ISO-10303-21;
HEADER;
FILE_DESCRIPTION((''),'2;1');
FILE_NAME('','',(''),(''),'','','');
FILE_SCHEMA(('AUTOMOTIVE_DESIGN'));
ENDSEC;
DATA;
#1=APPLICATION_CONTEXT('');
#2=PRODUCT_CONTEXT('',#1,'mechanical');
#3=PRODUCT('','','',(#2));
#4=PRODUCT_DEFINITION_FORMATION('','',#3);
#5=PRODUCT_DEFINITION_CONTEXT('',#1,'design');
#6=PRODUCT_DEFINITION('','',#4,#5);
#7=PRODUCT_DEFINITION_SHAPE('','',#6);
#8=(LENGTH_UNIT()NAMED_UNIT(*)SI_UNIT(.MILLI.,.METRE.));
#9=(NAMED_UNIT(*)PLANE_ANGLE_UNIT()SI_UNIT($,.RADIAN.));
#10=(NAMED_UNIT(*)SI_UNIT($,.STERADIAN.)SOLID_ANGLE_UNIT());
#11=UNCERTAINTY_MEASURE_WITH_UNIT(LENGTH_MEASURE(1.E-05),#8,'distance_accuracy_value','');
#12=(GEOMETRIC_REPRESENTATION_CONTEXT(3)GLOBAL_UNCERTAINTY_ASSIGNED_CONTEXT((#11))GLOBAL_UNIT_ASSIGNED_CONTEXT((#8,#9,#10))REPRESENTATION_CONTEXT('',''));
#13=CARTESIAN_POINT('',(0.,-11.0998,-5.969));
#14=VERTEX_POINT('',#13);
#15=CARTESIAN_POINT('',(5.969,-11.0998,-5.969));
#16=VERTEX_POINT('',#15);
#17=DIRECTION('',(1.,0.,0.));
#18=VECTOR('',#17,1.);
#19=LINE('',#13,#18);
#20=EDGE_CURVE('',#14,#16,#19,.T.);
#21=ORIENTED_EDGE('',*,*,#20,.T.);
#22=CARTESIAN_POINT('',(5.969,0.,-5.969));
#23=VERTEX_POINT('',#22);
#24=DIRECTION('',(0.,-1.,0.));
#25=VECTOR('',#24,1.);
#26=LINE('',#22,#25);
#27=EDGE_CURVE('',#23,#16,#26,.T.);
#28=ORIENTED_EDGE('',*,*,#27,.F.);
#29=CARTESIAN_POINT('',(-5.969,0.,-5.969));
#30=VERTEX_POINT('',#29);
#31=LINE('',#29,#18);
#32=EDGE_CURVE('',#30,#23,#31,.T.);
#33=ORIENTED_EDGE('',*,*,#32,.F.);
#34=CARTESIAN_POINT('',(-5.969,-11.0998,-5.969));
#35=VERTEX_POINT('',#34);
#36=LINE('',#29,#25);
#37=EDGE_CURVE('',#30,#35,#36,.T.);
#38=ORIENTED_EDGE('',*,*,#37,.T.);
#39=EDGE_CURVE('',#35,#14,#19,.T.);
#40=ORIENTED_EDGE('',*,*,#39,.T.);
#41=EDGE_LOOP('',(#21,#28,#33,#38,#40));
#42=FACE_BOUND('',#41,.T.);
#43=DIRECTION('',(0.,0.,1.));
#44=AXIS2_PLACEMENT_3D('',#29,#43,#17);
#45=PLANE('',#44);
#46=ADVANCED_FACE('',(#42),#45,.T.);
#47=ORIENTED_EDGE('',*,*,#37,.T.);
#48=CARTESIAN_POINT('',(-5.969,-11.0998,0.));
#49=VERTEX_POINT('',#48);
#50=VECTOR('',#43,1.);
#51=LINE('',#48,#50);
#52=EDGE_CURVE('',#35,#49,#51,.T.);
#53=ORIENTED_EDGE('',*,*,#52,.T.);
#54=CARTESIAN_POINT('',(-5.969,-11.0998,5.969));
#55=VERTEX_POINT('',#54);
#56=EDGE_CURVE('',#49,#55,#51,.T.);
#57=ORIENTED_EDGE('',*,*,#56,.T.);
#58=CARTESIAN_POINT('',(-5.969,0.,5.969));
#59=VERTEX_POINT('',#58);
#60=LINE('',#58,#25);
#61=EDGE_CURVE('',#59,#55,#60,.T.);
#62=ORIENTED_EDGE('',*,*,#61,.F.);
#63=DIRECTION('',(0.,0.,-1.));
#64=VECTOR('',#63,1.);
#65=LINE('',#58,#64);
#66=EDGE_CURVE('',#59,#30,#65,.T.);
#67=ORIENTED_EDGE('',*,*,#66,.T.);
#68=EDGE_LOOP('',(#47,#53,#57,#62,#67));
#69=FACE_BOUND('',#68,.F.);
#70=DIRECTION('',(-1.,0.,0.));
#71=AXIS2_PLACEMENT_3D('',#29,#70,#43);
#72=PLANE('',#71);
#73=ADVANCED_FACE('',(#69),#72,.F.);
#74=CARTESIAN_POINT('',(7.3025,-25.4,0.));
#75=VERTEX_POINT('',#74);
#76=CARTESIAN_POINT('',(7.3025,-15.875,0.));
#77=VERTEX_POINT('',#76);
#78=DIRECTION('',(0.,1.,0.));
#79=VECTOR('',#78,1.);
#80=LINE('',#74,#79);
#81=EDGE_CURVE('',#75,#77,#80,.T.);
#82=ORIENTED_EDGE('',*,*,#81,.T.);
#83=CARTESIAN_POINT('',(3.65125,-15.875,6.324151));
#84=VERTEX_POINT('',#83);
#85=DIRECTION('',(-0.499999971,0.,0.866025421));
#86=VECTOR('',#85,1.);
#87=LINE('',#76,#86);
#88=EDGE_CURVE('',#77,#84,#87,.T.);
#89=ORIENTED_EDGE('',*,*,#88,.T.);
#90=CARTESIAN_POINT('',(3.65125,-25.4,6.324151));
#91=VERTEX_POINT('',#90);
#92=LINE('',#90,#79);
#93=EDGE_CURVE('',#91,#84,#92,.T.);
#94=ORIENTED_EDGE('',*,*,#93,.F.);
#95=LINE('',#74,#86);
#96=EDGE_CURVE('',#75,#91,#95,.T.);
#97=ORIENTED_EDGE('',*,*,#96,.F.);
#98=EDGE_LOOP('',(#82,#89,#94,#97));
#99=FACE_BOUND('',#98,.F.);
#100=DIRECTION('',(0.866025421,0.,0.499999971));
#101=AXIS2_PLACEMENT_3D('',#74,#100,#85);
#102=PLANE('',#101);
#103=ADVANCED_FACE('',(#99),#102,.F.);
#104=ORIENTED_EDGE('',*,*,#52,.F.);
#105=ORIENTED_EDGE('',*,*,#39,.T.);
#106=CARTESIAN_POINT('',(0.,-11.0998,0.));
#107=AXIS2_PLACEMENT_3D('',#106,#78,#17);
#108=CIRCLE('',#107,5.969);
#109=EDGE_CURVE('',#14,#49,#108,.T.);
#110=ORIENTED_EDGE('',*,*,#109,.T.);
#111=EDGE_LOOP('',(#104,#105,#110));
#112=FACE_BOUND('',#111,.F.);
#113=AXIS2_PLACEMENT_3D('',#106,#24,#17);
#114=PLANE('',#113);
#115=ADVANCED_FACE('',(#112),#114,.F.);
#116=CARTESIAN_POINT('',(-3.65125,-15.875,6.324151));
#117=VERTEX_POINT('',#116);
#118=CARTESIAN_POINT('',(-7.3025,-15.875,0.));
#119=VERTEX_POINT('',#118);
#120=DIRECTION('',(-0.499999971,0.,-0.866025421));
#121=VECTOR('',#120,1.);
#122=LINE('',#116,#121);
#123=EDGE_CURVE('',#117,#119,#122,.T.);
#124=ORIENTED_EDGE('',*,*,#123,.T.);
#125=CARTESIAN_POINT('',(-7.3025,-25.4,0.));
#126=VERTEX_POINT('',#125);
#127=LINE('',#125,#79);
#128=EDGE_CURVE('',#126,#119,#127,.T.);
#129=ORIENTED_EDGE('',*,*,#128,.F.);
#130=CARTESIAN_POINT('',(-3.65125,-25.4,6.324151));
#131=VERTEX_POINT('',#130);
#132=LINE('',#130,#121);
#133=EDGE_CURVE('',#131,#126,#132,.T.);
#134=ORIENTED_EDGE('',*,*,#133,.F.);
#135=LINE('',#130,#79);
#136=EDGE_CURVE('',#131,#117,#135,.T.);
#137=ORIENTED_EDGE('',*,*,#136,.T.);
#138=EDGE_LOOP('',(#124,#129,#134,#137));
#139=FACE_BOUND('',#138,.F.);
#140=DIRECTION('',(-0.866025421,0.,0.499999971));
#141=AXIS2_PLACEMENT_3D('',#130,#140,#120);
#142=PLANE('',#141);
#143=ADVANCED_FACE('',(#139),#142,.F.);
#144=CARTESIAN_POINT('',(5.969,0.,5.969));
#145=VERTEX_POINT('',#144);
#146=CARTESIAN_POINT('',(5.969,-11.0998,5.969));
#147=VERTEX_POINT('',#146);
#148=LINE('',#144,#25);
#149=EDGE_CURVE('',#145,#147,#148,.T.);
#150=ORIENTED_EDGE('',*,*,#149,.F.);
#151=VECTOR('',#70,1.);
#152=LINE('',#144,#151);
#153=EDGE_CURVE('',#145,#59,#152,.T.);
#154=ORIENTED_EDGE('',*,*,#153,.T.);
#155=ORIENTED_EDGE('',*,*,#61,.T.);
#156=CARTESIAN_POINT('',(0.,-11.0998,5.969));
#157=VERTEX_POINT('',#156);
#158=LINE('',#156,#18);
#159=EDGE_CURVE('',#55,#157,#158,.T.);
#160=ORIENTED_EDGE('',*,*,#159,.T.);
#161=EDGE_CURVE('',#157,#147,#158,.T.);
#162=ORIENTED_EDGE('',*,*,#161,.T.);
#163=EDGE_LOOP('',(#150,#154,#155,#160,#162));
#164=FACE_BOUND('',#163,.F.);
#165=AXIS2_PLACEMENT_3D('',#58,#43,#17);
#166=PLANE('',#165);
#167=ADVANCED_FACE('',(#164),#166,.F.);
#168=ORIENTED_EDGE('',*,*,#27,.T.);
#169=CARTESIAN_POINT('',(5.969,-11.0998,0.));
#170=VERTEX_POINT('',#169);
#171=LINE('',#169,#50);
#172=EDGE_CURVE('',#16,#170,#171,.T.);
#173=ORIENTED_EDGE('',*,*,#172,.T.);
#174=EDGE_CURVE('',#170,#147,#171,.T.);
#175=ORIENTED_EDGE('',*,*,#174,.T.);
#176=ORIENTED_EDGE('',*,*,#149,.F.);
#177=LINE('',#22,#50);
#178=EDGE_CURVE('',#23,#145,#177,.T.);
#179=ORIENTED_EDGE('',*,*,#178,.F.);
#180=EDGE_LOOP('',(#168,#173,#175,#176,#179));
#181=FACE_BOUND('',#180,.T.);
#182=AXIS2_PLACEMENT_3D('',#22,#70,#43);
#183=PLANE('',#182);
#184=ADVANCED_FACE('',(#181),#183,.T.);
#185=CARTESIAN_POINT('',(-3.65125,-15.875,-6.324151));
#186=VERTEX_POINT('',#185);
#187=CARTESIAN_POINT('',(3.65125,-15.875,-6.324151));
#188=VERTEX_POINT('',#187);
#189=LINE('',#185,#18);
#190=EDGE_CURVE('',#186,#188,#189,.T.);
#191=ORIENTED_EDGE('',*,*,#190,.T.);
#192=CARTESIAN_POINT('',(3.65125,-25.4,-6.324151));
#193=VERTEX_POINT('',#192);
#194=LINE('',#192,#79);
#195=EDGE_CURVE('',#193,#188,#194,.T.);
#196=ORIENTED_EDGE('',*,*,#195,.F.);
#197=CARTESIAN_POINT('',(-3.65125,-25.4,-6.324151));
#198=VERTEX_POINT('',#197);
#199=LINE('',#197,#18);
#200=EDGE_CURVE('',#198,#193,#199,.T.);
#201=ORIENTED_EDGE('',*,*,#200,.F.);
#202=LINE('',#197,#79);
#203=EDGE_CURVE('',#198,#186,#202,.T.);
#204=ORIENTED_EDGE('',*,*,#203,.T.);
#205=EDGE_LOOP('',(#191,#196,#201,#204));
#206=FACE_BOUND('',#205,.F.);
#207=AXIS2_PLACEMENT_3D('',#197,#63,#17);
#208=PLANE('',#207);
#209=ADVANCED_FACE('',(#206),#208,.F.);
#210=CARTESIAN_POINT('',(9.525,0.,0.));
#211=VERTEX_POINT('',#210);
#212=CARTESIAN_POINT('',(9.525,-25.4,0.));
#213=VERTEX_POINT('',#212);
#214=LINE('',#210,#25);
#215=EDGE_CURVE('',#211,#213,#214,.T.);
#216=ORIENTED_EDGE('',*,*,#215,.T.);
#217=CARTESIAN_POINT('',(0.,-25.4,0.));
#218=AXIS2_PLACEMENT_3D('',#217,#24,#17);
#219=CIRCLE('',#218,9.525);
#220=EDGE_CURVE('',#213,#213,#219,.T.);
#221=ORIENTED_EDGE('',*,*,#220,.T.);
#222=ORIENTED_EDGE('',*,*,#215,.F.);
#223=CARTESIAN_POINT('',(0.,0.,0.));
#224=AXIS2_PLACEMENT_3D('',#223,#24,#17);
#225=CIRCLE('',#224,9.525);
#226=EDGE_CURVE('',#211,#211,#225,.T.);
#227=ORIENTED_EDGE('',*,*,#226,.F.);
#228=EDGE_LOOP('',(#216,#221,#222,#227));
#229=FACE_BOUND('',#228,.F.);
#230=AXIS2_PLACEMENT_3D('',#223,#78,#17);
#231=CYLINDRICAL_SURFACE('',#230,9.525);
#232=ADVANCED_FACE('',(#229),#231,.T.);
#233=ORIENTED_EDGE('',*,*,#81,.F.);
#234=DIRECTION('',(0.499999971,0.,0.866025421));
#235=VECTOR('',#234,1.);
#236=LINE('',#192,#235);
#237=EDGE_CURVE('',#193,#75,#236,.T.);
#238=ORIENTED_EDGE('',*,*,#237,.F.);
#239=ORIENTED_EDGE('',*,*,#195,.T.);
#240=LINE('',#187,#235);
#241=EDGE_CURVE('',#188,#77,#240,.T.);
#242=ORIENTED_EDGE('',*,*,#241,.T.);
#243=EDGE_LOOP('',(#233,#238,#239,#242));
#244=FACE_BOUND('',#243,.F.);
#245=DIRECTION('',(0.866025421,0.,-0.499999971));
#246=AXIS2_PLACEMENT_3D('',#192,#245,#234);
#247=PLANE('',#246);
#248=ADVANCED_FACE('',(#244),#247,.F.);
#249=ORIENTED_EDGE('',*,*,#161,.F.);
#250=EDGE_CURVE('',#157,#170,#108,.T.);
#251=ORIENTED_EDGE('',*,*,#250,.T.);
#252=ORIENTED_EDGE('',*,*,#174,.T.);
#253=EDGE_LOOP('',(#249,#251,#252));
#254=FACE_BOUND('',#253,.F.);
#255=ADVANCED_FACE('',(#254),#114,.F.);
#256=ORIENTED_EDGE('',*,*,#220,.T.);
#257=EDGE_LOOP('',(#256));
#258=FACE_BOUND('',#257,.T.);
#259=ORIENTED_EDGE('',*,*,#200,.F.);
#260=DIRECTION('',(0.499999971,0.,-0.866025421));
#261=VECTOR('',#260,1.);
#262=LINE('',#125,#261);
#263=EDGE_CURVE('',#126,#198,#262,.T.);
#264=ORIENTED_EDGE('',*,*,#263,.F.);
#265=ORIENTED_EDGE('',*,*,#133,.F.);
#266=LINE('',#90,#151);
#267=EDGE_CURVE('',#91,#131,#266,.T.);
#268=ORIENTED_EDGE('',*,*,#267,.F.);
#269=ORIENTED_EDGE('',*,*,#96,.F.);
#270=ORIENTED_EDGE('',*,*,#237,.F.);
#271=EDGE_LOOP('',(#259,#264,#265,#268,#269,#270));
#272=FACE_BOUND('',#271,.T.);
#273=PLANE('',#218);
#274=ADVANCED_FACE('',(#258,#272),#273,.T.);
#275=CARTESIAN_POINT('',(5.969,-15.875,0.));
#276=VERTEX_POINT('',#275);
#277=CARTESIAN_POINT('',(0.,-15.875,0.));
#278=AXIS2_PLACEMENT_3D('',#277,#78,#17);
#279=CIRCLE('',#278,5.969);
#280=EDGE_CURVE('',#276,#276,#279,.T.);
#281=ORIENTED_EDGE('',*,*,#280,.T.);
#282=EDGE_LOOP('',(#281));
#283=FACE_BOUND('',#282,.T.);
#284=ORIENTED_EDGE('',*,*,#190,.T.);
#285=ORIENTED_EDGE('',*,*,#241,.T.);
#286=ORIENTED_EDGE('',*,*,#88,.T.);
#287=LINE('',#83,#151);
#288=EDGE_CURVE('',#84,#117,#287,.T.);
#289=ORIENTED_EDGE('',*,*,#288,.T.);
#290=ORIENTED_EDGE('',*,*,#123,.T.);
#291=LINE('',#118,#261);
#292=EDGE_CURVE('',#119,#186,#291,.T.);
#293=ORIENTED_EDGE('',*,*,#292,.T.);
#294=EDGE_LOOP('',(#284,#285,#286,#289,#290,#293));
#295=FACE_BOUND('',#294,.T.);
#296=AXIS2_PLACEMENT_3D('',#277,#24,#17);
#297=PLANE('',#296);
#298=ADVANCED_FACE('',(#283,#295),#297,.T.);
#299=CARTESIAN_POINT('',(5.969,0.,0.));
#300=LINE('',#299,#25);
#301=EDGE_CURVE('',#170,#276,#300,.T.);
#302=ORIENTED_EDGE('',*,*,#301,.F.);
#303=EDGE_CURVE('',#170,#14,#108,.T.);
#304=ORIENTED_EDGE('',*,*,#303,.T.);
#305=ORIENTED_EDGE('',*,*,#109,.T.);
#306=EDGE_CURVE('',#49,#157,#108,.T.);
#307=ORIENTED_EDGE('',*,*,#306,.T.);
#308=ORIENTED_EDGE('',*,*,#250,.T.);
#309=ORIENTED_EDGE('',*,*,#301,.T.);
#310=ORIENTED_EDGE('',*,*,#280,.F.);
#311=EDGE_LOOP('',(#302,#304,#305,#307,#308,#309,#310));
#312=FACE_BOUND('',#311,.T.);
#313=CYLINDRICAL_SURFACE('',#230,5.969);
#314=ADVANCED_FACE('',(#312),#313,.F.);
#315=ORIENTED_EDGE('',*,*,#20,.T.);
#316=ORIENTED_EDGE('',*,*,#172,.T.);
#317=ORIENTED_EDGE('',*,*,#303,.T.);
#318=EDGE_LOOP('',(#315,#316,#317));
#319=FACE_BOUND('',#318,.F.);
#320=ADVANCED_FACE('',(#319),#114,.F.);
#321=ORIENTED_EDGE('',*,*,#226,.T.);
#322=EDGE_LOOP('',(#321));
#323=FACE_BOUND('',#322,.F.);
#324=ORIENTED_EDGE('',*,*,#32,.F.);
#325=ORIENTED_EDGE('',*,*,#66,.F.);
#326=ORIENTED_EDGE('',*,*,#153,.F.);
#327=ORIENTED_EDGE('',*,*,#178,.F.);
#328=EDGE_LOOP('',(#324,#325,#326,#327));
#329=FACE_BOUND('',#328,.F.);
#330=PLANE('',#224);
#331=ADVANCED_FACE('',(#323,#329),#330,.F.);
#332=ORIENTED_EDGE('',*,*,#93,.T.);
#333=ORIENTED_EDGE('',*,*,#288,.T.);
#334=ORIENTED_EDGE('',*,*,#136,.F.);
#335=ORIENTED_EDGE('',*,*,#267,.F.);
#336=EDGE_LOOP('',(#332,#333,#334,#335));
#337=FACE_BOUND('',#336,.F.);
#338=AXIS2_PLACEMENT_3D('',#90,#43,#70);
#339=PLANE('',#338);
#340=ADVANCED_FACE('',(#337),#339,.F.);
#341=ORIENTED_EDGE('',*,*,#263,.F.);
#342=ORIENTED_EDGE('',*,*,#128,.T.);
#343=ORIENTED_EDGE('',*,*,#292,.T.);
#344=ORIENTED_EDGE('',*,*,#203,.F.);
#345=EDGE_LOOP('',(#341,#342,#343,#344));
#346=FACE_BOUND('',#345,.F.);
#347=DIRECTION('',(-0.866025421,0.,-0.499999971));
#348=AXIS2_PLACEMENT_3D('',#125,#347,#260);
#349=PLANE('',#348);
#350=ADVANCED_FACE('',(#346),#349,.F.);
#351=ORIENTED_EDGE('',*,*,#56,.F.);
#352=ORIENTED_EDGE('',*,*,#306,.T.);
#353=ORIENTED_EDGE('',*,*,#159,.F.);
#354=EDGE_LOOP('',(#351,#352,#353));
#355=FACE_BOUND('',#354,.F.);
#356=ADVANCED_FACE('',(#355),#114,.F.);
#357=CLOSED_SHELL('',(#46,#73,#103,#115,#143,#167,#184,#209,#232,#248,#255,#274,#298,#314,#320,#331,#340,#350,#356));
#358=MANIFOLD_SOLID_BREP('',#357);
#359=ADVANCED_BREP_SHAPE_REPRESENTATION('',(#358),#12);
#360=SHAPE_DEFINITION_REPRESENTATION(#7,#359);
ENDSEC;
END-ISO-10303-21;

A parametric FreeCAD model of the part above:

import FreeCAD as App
import Part
import Sketcher
from FreeCAD import Vector
Q = App.Units.Quantity


def add_polygon(sketch, points):
    """Adds a closed chain of lines whose ends are joined by coincident constraints."""
    first, n = sketch.GeometryCount, len(points)
    for a, b in zip(points, points[1:] + points[:1]):
        sketch.addGeometry(Part.LineSegment(App.Vector(*a, 0), App.Vector(*b, 0)), False)
    for i in range(n):
        sketch.addConstraint(Sketcher.Constraint("Coincident", first + i, 2, first + (i + 1) % n, 1))

doc = App.newDocument("Part")
body = doc.addObject("PartDesign::Body", "Body")

# Sketch on XZ plane
sketch1 = body.newObject("Sketcher::SketchObject", "Sketch")
sketch1.AttachmentSupport = (doc.getObject("XZ_Plane"), [""])
sketch1.MapMode = "FlatFace"
sketch1.addGeometry(Part.Circle(Vector(0, 0, 0), Vector(0, 0, 1), 10), False)
sketch1.addConstraint(Sketcher.Constraint("Coincident", 0, 3, -1, 1))
sketch1.addConstraint(Sketcher.Constraint("Diameter", 0, Q("0.75 in")))
pad1 = body.newObject("PartDesign::Pad", "Pad")
pad1.Profile = sketch1
pad1.Length = Q("1 in")

# Sketch on XZ plane
sketch2 = body.newObject("Sketcher::SketchObject", "Sketch001")
sketch2.AttachmentSupport = (doc.getObject("XZ_Plane"), [""])
sketch2.MapMode = "FlatFace"
sketch2.addGeometry(Part.Circle(Vector(0, 0, 0), Vector(0, 0, 1), 6), False)
sketch2.addConstraint(Sketcher.Constraint("Coincident", 0, 3, -1, 1))
sketch2.addConstraint(Sketcher.Constraint("Diameter", 0, Q("0.47 in")))
pocket1 = body.newObject("PartDesign::Pocket", "Pocket")
pocket1.Profile = sketch2
pocket1.Type = "ThroughAll"
pocket1.Reversed = True

# Sketch on XZ plane
sketch3 = body.newObject("Sketcher::SketchObject", "Sketch002")
sketch3.AttachmentSupport = (doc.getObject("XZ_Plane"), [""])
sketch3.MapMode = "FlatFace"
add_polygon(sketch3, [(-6, 6), (-6, -6), (6, -6), (6, 6)])  # lines 0-3
sketch3.addConstraint(Sketcher.Constraint("Vertical", 0))
sketch3.addConstraint(Sketcher.Constraint("Horizontal", 1))
sketch3.addConstraint(Sketcher.Constraint("Vertical", 2))
sketch3.addConstraint(Sketcher.Constraint("Horizontal", 3))
sketch3.addConstraint(Sketcher.Constraint("Symmetric", 0, 2, 2, 2, -1, 1))
sketch3.addConstraint(Sketcher.Constraint("Equal", 3, 0))
sketch3.addConstraint(Sketcher.Constraint("DistanceX", 1, 1, 1, 2, Q("0.47 in")))
pocket2 = body.newObject("PartDesign::Pocket", "Pocket001")
pocket2.Profile = sketch3
pocket2.Length = Q("0.437 in")
pocket2.Reversed = True

# Sketch on XZ plane
sketch4 = body.newObject("Sketcher::SketchObject", "Sketch003")
sketch4.AttachmentSupport = (doc.getObject("XZ_Plane"), [""])
sketch4.MapMode = "FlatFace"
sketch4.AttachmentOffset = App.Placement(Vector(0, 0, 1 * 25.4), App.Rotation())
add_polygon(sketch4, [(4, 6), (-4, 6), (-7, 0), (-4, -6), (4, -6), (7, 0)])  # lines 0-5
sketch4.addConstraint(Sketcher.Constraint("Horizontal", 0))
sketch4.addConstraint(Sketcher.Constraint("Horizontal", 3))
sketch4.addConstraint(Sketcher.Constraint("Symmetric", 0, 2, 3, 2, -1, 1))
sketch4.addConstraint(Sketcher.Constraint("Symmetric", 1, 2, 4, 2, -1, 1))
sketch4.addConstraint(Sketcher.Constraint("PointOnObject", 1, 2, -1))
sketch4.addConstraint(Sketcher.Constraint("Parallel", 2, 5))
sketch4.addConstraint(Sketcher.Constraint("Vertical", 0, 2, 2, 2))
sketch4.addConstraint(Sketcher.Constraint("Angle", 1, Q("-119.999998 deg")))
sketch4.addConstraint(Sketcher.Constraint("DistanceX", 0, 2, 0, 1, Q("0.2875 in")))
sketch4.addConstraint(Sketcher.Constraint("DistanceX", 1, 2, 4, 2, Q("0.575 in")))
pocket3 = body.newObject("PartDesign::Pocket", "Pocket002")
pocket3.Profile = sketch4
pocket3.Length = Q("0.375 in")

doc.recompute()
